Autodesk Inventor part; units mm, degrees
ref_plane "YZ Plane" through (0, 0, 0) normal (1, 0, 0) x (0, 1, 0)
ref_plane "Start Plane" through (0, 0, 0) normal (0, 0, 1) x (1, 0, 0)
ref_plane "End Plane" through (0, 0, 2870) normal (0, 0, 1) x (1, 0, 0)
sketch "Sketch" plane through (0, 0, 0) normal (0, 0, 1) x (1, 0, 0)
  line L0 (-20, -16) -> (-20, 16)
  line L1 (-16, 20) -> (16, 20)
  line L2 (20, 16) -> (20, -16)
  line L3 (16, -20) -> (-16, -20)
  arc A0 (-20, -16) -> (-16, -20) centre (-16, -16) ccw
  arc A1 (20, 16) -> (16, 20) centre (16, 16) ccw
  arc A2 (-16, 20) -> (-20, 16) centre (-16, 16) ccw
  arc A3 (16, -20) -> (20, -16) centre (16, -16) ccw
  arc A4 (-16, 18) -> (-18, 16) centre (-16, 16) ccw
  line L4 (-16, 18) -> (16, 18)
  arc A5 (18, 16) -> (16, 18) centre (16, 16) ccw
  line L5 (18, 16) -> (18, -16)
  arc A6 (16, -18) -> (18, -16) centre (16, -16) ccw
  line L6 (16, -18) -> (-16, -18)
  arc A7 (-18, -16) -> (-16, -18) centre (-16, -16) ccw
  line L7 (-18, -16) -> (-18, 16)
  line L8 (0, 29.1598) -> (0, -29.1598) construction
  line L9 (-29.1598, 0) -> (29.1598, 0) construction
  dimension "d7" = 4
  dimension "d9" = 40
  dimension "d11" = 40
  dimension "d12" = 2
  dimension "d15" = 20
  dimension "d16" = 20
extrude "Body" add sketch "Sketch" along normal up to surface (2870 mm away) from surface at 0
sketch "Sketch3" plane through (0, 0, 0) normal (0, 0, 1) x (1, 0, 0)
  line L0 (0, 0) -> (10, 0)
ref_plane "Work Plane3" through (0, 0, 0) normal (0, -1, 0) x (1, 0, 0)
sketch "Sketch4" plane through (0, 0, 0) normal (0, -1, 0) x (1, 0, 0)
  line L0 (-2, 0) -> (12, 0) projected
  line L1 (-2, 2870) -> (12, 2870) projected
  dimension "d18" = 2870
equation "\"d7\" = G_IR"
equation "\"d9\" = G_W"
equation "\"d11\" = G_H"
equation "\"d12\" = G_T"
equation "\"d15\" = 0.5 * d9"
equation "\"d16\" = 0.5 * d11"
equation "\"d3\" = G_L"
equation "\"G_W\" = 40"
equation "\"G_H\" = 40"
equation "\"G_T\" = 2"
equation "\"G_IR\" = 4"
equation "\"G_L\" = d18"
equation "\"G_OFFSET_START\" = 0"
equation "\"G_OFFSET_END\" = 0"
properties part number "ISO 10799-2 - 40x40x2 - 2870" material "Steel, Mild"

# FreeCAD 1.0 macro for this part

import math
import FreeCAD as App
import Part
import Sketcher

doc = App.newDocument("Part")
body = doc.addObject("PartDesign::Body", "Body")

# Sketch on XY plane
sketch1 = doc.addObject("Sketcher::SketchObject", "Sketch")
body.addObject(sketch1)
sketch1.AttachmentSupport = (doc.XY_Plane, [""])
sketch1.MapMode = "FlatFace"
sketch1.addGeometry(Part.LineSegment(App.Vector(-20, 16, 0), App.Vector(-20, -16, 0)), False)
sketch1.addGeometry(Part.ArcOfCircle(Part.Circle(App.Vector(-16, -16, 0), App.Vector(0, 0, 1), 4), math.radians(180), math.radians(270)), False)
sketch1.addGeometry(Part.LineSegment(App.Vector(-16, -20, 0), App.Vector(16, -20, 0)), False)
sketch1.addGeometry(Part.ArcOfCircle(Part.Circle(App.Vector(16, -16, 0), App.Vector(0, 0, 1), 4), math.radians(-90), math.radians(0)), False)
sketch1.addGeometry(Part.LineSegment(App.Vector(20, -16, 0), App.Vector(20, 16, 0)), False)
sketch1.addGeometry(Part.ArcOfCircle(Part.Circle(App.Vector(16, 16, 0), App.Vector(0, 0, 1), 4), math.radians(0), math.radians(90)), False)
sketch1.addGeometry(Part.LineSegment(App.Vector(16, 20, 0), App.Vector(-16, 20, 0)), False)
sketch1.addGeometry(Part.ArcOfCircle(Part.Circle(App.Vector(-16, 16, 0), App.Vector(0, 0, 1), 4), math.radians(90), math.radians(180)), False)
sketch1.addGeometry(Part.ArcOfCircle(Part.Circle(App.Vector(-16, 16, 0), App.Vector(0, 0, 1), 2), math.radians(90), math.radians(180)), False)
sketch1.addGeometry(Part.LineSegment(App.Vector(-16, 18, 0), App.Vector(16, 18, 0)), False)
sketch1.addGeometry(Part.ArcOfCircle(Part.Circle(App.Vector(16, 16, 0), App.Vector(0, 0, 1), 2), math.radians(0), math.radians(90)), False)
sketch1.addGeometry(Part.LineSegment(App.Vector(18, 16, 0), App.Vector(18, -16, 0)), False)
sketch1.addGeometry(Part.ArcOfCircle(Part.Circle(App.Vector(16, -16, 0), App.Vector(0, 0, 1), 2), math.radians(-90), math.radians(0)), False)
sketch1.addGeometry(Part.LineSegment(App.Vector(16, -18, 0), App.Vector(-16, -18, 0)), False)
sketch1.addGeometry(Part.ArcOfCircle(Part.Circle(App.Vector(-16, -16, 0), App.Vector(0, 0, 1), 2), math.radians(180), math.radians(270)), False)
sketch1.addGeometry(Part.LineSegment(App.Vector(-18, -16, 0), App.Vector(-18, 16, 0)), False)
sketch1.addConstraint(Sketcher.Constraint("Tangent", 0, 2, 1, 1))
sketch1.addConstraint(Sketcher.Constraint("Tangent", 1, 2, 2, 1))
sketch1.addConstraint(Sketcher.Constraint("Tangent", 2, 2, 3, 1))
sketch1.addConstraint(Sketcher.Constraint("Tangent", 3, 2, 4, 1))
sketch1.addConstraint(Sketcher.Constraint("Tangent", 4, 2, 5, 1))
sketch1.addConstraint(Sketcher.Constraint("Tangent", 5, 2, 6, 1))
sketch1.addConstraint(Sketcher.Constraint("Tangent", 6, 2, 7, 1))
sketch1.addConstraint(Sketcher.Constraint("Tangent", 7, 2, 0, 1))
sketch1.addConstraint(Sketcher.Constraint("Tangent", 8, 1, 9, 1))
sketch1.addConstraint(Sketcher.Constraint("Tangent", 9, 2, 10, 2))
sketch1.addConstraint(Sketcher.Constraint("Tangent", 10, 1, 11, 1))
sketch1.addConstraint(Sketcher.Constraint("Tangent", 11, 2, 12, 2))
sketch1.addConstraint(Sketcher.Constraint("Tangent", 12, 1, 13, 1))
sketch1.addConstraint(Sketcher.Constraint("Tangent", 13, 2, 14, 2))
sketch1.addConstraint(Sketcher.Constraint("Tangent", 14, 1, 15, 1))
sketch1.addConstraint(Sketcher.Constraint("Tangent", 15, 2, 8, 2))
sketch1.addConstraint(Sketcher.Constraint("Vertical", 0))
sketch1.addConstraint(Sketcher.Constraint("Horizontal", 2))
sketch1.addConstraint(Sketcher.Constraint("Vertical", 4))
sketch1.addConstraint(Sketcher.Constraint("Horizontal", 6))
sketch1.addConstraint(Sketcher.Constraint("Horizontal", 9))
sketch1.addConstraint(Sketcher.Constraint("Vertical", 11))
sketch1.addConstraint(Sketcher.Constraint("Horizontal", 13))
sketch1.addConstraint(Sketcher.Constraint("Vertical", 15))
sketch1.addConstraint(Sketcher.Constraint("Coincident", 8, 3, 7, 3))
sketch1.addConstraint(Sketcher.Constraint("Coincident", 10, 3, 5, 3))
sketch1.addConstraint(Sketcher.Constraint("Coincident", 12, 3, 3, 3))
sketch1.addConstraint(Sketcher.Constraint("Equal", 1, 3))
sketch1.addConstraint(Sketcher.Constraint("Equal", 3, 5))
sketch1.addConstraint(Sketcher.Constraint("Equal", 5, 7))
sketch1.addConstraint(Sketcher.Constraint("Equal", 12, 14))
sketch1.addConstraint(Sketcher.Constraint("Symmetric", 1, 3, 5, 3, -1, 1))
sketch1.addConstraint(Sketcher.Constraint("Equal", 13, 0))
sketch1.addConstraint(Sketcher.Constraint("Radius", 1, 4.0))
sketch1.addConstraint(Sketcher.Constraint("Radius", 8, 2.0))
sketch1.addConstraint(Sketcher.Constraint("DistanceX", 0, 2, -1, 1, 20.0))
pad1 = doc.addObject("PartDesign::Pad", "Pad")
body.addObject(pad1)
pad1.Profile = sketch1
pad1.Length = 2870

doc.recompute()
